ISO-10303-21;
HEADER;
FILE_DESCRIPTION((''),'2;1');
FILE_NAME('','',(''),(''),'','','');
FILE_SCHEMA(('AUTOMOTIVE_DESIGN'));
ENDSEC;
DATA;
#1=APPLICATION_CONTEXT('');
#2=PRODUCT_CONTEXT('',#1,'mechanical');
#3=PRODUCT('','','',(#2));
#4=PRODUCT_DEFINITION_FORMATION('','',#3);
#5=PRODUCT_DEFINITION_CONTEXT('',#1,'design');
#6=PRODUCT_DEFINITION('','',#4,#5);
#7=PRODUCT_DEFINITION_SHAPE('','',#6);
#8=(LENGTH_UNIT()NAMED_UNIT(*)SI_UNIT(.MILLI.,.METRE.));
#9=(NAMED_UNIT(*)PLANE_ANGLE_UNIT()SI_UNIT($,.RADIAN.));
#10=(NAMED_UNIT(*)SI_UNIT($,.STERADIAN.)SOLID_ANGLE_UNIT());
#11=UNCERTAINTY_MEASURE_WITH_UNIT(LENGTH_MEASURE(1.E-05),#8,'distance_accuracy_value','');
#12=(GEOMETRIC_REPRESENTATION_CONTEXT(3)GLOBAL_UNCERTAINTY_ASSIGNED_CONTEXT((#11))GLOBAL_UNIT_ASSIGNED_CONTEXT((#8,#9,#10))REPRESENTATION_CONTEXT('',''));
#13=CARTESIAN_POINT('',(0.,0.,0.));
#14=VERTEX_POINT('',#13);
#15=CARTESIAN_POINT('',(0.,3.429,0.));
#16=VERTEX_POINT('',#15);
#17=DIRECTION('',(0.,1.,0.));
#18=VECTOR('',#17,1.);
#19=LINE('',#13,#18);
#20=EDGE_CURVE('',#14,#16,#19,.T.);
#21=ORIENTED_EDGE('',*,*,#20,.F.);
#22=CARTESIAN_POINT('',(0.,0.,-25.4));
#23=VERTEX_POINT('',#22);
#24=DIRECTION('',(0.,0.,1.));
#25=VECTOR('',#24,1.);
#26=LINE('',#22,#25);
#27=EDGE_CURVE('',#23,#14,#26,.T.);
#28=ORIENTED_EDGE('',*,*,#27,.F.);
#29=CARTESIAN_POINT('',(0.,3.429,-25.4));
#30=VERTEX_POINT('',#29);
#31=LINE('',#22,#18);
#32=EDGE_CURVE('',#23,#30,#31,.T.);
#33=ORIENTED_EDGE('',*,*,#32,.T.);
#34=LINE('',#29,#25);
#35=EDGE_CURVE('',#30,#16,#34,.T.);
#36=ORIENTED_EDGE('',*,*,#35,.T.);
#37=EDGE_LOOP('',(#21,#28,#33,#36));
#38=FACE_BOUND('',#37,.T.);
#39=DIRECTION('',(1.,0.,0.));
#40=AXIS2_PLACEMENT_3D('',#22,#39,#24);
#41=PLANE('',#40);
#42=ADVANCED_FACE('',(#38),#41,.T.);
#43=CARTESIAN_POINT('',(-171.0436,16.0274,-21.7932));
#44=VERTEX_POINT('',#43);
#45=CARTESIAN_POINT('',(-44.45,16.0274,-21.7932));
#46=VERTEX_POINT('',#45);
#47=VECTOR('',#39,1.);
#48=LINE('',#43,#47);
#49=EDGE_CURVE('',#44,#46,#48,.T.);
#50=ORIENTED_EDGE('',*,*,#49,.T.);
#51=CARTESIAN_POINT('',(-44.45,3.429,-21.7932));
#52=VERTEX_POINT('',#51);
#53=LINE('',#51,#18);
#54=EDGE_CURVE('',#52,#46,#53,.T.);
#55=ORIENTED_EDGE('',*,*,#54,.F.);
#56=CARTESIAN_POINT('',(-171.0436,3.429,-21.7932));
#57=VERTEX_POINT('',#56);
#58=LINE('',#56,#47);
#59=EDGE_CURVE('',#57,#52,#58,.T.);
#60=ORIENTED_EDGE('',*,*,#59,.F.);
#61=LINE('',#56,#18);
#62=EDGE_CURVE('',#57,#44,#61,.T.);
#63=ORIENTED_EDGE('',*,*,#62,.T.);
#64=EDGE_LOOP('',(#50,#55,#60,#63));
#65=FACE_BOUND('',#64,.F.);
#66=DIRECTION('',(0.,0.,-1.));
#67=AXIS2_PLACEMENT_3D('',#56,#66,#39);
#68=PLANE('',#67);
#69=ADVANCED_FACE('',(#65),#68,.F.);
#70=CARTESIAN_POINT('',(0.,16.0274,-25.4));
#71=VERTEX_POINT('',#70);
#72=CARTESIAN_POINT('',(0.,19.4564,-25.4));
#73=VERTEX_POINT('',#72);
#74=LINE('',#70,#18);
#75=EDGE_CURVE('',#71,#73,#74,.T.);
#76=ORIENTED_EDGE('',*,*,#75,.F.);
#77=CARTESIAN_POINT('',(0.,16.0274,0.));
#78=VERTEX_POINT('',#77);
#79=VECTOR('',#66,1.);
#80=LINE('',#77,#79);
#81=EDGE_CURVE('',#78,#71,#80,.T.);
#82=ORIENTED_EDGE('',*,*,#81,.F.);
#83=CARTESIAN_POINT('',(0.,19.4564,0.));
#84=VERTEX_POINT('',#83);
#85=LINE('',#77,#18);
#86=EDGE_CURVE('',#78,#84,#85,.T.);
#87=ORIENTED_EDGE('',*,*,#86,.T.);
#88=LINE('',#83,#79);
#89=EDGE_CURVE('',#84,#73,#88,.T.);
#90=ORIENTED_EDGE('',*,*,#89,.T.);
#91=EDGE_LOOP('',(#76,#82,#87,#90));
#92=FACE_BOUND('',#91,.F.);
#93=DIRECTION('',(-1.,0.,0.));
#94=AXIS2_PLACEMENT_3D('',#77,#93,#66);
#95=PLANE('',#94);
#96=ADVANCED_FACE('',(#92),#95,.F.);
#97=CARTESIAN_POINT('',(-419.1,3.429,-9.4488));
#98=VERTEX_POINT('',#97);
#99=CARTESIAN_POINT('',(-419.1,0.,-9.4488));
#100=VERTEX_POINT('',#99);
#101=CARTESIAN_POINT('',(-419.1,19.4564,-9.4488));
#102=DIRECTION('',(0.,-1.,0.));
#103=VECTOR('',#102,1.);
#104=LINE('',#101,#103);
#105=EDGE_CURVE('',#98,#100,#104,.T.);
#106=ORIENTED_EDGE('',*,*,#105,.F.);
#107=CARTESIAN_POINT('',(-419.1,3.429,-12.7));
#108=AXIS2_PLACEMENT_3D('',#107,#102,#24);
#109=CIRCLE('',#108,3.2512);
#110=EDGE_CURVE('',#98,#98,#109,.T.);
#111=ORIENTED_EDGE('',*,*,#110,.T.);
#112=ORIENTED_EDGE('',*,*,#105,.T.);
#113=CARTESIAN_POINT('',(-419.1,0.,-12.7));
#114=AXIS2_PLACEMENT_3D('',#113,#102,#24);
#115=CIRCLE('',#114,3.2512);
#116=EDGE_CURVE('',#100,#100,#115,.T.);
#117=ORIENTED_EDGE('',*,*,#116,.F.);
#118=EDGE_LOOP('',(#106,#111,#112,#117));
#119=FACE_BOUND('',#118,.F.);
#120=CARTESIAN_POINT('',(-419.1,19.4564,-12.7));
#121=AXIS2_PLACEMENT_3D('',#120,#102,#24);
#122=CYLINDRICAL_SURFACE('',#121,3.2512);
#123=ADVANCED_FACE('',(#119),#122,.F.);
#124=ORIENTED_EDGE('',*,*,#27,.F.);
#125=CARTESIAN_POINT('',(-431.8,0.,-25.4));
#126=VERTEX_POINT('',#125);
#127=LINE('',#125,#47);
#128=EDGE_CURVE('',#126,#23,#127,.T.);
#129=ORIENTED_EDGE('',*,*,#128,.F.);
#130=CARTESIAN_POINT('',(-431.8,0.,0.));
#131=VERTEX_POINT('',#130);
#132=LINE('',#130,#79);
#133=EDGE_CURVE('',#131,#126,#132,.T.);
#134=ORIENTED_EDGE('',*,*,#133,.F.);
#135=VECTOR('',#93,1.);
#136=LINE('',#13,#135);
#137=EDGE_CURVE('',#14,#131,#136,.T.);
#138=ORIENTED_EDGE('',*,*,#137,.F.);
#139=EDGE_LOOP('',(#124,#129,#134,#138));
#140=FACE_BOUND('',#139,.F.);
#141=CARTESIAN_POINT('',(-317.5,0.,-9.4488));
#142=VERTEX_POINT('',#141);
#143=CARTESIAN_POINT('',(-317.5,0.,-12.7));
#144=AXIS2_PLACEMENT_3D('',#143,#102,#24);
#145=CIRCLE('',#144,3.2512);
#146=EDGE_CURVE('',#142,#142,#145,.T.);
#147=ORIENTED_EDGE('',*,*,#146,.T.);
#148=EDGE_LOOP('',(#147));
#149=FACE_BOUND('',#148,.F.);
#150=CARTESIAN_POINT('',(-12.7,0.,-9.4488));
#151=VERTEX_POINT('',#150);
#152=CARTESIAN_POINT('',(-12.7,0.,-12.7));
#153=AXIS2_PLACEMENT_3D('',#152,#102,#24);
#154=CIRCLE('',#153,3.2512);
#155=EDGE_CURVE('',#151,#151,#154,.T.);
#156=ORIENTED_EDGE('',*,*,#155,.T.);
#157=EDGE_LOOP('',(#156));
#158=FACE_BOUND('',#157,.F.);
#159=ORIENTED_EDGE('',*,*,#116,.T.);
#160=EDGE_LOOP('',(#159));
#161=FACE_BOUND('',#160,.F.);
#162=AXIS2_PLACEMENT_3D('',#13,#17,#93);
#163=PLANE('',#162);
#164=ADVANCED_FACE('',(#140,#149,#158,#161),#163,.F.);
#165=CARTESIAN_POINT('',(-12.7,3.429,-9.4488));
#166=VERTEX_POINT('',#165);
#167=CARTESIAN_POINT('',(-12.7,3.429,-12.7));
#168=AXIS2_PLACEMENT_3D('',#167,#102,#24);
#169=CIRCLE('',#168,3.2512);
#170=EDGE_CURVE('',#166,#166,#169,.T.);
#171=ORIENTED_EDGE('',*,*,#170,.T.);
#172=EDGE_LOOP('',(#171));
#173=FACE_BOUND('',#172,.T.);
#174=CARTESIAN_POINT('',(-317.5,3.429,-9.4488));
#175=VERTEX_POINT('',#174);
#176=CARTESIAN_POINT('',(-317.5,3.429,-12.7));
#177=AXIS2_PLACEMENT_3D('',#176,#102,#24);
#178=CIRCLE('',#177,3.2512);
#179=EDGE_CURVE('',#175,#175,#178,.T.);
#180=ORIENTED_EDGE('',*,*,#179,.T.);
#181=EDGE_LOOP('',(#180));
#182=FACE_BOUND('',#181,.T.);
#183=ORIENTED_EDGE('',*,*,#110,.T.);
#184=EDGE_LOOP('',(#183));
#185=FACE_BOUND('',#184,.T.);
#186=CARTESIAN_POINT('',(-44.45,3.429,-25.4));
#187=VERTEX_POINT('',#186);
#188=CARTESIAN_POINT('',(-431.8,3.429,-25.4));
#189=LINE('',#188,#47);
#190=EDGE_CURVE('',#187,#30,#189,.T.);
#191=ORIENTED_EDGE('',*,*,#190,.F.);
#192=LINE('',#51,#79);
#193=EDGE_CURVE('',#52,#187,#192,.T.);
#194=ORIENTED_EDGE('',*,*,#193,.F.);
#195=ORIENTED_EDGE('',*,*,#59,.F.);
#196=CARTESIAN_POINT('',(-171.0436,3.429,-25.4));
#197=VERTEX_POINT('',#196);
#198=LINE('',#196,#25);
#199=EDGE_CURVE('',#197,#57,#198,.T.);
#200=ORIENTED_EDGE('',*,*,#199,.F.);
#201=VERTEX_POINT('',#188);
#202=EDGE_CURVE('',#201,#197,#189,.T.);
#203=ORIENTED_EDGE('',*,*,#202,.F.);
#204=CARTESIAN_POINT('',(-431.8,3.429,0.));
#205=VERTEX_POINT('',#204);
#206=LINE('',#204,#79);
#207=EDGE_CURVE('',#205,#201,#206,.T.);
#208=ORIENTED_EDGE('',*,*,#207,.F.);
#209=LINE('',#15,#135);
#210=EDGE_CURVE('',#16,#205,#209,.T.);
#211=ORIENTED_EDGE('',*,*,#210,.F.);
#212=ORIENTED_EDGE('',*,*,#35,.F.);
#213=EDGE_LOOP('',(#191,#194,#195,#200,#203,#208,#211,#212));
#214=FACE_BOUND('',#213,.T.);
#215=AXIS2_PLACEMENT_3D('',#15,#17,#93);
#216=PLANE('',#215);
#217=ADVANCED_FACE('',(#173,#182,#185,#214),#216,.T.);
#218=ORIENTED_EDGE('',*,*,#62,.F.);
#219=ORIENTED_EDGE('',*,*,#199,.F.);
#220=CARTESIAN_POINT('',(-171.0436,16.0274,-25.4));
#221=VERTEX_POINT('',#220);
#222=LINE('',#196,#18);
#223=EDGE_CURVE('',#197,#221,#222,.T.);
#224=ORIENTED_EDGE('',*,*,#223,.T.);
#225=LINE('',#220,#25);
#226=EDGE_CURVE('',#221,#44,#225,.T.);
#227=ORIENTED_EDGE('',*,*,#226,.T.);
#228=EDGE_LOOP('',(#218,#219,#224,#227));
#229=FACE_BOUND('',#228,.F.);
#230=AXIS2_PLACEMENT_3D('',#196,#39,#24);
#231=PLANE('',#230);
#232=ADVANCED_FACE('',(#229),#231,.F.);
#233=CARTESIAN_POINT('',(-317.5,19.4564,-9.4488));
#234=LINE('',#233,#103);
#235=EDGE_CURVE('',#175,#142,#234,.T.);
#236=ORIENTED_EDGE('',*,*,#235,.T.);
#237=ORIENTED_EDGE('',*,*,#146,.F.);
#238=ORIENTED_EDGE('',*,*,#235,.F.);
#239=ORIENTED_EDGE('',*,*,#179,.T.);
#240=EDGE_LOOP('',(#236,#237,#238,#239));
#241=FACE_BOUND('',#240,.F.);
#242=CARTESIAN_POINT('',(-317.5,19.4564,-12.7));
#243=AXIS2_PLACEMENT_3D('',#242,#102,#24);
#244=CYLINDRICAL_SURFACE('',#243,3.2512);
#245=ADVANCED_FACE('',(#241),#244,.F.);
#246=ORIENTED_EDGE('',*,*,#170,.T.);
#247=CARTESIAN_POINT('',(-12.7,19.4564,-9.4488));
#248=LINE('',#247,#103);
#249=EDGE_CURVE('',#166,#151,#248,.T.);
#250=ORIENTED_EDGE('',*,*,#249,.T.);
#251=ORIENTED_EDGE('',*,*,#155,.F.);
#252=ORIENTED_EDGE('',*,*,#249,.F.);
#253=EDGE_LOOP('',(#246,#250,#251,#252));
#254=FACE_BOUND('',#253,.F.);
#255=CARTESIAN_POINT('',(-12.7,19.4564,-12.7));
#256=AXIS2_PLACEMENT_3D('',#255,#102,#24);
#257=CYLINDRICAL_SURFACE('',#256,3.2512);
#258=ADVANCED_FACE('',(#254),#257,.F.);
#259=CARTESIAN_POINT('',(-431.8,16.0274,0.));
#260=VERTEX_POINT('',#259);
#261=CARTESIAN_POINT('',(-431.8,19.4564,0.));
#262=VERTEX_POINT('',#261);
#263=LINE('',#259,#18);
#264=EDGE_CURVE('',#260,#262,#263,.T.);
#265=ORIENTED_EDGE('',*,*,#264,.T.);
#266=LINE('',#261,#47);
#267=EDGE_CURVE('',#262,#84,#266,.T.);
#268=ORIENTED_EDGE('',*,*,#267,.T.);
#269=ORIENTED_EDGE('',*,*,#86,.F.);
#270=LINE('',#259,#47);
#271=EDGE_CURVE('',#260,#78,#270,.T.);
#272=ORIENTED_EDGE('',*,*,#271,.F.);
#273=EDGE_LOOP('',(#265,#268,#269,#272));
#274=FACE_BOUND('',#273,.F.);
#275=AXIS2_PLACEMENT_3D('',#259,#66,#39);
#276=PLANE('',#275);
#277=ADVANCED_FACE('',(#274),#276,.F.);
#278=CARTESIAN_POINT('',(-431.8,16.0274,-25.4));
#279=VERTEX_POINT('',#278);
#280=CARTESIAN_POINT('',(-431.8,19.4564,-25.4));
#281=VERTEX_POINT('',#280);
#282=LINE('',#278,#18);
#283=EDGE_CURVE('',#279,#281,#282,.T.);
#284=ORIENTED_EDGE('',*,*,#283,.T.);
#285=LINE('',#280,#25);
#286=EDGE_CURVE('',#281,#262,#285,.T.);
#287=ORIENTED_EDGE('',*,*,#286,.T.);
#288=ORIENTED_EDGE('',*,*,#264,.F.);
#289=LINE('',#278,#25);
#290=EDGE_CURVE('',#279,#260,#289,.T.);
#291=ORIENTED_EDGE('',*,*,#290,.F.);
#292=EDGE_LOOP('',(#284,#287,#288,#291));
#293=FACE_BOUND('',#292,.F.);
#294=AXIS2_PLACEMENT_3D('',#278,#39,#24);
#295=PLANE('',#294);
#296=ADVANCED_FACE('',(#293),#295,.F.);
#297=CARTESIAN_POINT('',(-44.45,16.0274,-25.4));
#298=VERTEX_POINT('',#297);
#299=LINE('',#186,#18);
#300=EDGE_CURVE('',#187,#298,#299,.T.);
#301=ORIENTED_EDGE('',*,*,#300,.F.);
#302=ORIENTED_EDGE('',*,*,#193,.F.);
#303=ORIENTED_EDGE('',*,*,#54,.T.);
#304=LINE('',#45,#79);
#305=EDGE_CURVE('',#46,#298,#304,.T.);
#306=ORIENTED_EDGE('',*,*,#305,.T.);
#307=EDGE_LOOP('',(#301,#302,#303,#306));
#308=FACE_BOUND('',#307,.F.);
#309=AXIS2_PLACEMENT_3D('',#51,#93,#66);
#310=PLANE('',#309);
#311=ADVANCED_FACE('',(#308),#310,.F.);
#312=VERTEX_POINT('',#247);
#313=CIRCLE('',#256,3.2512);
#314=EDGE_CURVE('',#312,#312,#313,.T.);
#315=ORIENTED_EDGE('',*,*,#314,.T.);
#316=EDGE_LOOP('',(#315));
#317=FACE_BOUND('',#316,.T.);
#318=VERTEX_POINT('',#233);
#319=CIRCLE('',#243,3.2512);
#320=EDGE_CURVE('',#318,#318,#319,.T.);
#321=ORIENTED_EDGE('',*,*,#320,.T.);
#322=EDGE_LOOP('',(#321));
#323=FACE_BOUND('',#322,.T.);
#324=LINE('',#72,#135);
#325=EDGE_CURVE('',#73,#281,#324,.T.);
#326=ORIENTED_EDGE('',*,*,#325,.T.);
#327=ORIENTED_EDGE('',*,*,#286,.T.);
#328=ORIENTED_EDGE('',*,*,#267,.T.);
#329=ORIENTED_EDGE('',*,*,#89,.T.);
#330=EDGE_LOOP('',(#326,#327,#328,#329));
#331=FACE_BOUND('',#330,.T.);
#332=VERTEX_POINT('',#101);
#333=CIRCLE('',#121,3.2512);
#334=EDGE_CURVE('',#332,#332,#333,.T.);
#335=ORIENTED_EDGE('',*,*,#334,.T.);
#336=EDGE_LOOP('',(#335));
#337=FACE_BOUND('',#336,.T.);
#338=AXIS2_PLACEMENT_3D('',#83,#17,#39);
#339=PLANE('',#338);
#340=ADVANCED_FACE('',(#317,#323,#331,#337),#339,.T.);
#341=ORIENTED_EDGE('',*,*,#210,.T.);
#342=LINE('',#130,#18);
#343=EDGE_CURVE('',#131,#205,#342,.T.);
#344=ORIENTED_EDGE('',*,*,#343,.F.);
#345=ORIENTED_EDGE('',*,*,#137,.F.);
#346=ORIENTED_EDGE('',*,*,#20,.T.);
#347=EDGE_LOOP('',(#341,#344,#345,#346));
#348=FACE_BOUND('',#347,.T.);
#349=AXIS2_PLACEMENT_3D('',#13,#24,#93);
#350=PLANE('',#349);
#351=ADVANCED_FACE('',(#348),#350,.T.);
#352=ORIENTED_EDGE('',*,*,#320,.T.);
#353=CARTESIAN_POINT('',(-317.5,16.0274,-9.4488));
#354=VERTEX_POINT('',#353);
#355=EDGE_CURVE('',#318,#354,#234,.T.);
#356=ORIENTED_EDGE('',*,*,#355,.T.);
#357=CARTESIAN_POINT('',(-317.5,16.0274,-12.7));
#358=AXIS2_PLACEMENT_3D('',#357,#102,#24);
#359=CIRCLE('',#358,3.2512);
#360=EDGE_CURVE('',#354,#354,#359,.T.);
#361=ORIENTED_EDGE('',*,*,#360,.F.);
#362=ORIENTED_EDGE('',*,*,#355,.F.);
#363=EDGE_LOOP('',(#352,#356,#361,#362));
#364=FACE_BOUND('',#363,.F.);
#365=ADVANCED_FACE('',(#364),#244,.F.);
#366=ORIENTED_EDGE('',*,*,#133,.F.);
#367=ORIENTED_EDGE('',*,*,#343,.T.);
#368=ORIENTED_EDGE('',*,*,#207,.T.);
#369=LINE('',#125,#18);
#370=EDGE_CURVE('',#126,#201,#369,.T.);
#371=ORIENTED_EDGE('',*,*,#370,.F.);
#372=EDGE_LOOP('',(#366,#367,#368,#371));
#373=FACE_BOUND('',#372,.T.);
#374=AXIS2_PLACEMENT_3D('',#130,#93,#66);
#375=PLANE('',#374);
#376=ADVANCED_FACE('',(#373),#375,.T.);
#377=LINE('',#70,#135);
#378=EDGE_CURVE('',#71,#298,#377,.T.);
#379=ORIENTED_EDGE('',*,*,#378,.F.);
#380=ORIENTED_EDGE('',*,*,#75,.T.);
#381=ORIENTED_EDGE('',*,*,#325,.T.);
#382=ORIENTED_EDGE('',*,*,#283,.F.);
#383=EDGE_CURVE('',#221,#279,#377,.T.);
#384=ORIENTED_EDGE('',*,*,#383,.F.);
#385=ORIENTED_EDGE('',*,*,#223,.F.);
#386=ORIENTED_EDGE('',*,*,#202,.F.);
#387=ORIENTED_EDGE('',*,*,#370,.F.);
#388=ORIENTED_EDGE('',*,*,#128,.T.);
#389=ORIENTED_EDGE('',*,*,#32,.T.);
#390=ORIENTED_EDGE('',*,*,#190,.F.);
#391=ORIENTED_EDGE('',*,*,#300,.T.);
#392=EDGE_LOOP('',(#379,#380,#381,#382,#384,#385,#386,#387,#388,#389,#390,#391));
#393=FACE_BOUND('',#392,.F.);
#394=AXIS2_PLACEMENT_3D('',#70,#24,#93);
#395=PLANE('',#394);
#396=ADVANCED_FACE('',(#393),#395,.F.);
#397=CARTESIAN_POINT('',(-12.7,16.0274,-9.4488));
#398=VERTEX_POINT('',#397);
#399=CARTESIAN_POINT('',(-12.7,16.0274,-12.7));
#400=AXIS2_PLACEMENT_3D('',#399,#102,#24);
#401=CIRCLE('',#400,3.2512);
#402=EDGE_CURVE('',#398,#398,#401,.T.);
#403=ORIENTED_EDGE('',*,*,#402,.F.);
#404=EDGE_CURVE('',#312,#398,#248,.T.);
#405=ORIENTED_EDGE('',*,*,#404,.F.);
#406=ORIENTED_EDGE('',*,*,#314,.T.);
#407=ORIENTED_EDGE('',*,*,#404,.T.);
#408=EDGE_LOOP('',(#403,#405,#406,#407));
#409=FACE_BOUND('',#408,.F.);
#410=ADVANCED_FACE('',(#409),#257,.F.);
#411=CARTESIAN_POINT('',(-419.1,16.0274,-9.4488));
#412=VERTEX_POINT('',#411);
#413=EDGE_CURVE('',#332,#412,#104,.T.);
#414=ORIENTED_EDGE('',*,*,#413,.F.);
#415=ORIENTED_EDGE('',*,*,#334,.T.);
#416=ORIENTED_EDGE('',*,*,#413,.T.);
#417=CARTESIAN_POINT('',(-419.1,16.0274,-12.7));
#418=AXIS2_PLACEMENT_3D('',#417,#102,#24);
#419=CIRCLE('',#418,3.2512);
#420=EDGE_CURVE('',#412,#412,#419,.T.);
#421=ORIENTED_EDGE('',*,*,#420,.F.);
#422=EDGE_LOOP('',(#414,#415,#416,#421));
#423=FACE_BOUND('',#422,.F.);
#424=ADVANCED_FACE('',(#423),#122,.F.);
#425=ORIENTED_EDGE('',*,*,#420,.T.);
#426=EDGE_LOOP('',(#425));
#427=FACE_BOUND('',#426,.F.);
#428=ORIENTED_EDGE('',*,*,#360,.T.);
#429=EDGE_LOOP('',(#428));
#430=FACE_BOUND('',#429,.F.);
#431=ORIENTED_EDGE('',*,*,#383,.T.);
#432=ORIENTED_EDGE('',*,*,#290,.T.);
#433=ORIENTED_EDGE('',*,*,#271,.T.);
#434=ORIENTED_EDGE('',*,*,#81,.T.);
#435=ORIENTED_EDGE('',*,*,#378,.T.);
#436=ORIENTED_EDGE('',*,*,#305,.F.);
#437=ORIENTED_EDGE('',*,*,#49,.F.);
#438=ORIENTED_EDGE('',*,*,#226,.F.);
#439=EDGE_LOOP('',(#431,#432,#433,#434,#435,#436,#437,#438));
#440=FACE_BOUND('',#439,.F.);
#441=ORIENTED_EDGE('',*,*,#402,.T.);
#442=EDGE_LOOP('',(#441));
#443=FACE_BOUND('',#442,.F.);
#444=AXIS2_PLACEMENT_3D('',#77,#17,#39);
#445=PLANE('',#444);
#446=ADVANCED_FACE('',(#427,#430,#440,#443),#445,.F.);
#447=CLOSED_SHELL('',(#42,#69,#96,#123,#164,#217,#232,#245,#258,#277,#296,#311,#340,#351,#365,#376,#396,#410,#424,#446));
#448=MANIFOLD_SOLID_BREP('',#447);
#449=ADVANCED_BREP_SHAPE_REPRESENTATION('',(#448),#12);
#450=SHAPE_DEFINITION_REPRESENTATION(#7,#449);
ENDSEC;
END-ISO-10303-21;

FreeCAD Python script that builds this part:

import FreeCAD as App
import Part
import Sketcher
from FreeCAD import Vector
Q = App.Units.Quantity

doc = App.newDocument("Part")
body = doc.addObject("PartDesign::Body", "Body")

sketch1 = body.newObject("Sketcher::SketchObject", "Sketch")
sketch1.AttachmentSupport = (doc.getObject("XZ_Plane"), [""])
sketch1.MapMode = "FlatFace"
sketch1.addGeometry([
    Part.LineSegment(Vector(-431.8, 0, 0), Vector(0, 0, 0)),
    Part.LineSegment(Vector(0, 0, 0), Vector(0, -25.4, 0)),
    Part.LineSegment(Vector(0, -25.4, 0), Vector(-431.8, -25.4, 0)),
    Part.LineSegment(Vector(-431.8, -25.4, 0), Vector(-431.8, 0, 0)),
], False)
sketch1.addConstraint([
    Sketcher.Constraint("Coincident", 0, 2, 1, 1),
    Sketcher.Constraint("Coincident", 1, 2, 2, 1),
    Sketcher.Constraint("Coincident", 2, 2, 3, 1),
    Sketcher.Constraint("Coincident", 3, 2, 0, 1),
    Sketcher.Constraint("Horizontal", 0),
    Sketcher.Constraint("Vertical", 1),
    Sketcher.Constraint("Horizontal", 2),
    Sketcher.Constraint("Vertical", 3),
    Sketcher.Constraint("Coincident", 0, 2, -1, 1),
    Sketcher.Constraint("DistanceX", 0, 1, 0, 2, Q("17 in")),
    Sketcher.Constraint("DistanceY", 1, 2, 1, 1, Q("1 in")),
])
pad1 = body.newObject("PartDesign::Pad", "Pad")
pad1.Profile = sketch1
pad1.Length = Q("0.135 in")
pad1.Reversed = True

sketch2 = body.newObject("Sketcher::SketchObject", "Sketch001")
sketch2.AttachmentSupport = (doc.getObject("XZ_Plane"), [""])
sketch2.MapMode = "FlatFace"
sketch2.AttachmentOffset = App.Placement(Vector(0, 0, -0.135 * 25.4), App.Rotation())
sketch2.addGeometry([
    Part.LineSegment(Vector(-44.45, -21.7932, 0), Vector(-44.45, -25.4, 0)),
    Part.LineSegment(Vector(-44.45, -25.4, 0), Vector(-171.0436, -25.4, 0)),
    Part.LineSegment(Vector(-171.0436, -25.4, 0), Vector(-171.0436, -21.7932, 0)),
    Part.LineSegment(Vector(-171.0436, -21.7932, 0), Vector(-44.45, -21.7932, 0)),
], False)
sketch2.addConstraint([
    Sketcher.Constraint("Coincident", 0, 2, 1, 1),
    Sketcher.Constraint("Coincident", 1, 2, 2, 1),
    Sketcher.Constraint("Coincident", 2, 2, 3, 1),
    Sketcher.Constraint("Coincident", 3, 2, 0, 1),
    Sketcher.Constraint("Vertical", 0),
    Sketcher.Constraint("Horizontal", 1),
    Sketcher.Constraint("Vertical", 2),
    Sketcher.Constraint("Horizontal", 3),
    Sketcher.Constraint("DistanceX", 1, 2, 1, 1, Q("4.984 in")),
    Sketcher.Constraint("DistanceY", 0, 2, 0, 1, Q("0.142 in")),
    Sketcher.Constraint("DistanceX", 0, 2, -1, 1, Q("1.75 in")),
    Sketcher.Constraint("DistanceY", 0, 2, -1, 1, Q("1 in")),
])
pad2 = body.newObject("PartDesign::Pad", "Pad001")
pad2.Profile = sketch2
pad2.Length = Q("0.496 in")
pad2.Reversed = True

sketch3 = body.newObject("Sketcher::SketchObject", "Sketch002")
sketch3.AttachmentSupport = (doc.getObject("XZ_Plane"), [""])
sketch3.MapMode = "FlatFace"
sketch3.AttachmentOffset = App.Placement(Vector(0, 0, -0.631 * 25.4), App.Rotation())
sketch3.addGeometry([
    Part.LineSegment(Vector(-431.8, -25.4, 0), Vector(-431.8, 0, 0)),
    Part.LineSegment(Vector(-431.8, 0, 0), Vector(0, 0, 0)),
    Part.LineSegment(Vector(0, 0, 0), Vector(0, -25.4, 0)),
    Part.LineSegment(Vector(0, -25.4, 0), Vector(-431.8, -25.4, 0)),
], False)
sketch3.addConstraint([
    Sketcher.Constraint("Coincident", 0, 2, 1, 1),
    Sketcher.Constraint("Coincident", 1, 2, 2, 1),
    Sketcher.Constraint("Coincident", 2, 2, 3, 1),
    Sketcher.Constraint("Coincident", 3, 2, 0, 1),
    Sketcher.Constraint("Vertical", 0),
    Sketcher.Constraint("Horizontal", 1),
    Sketcher.Constraint("Vertical", 2),
    Sketcher.Constraint("Horizontal", 3),
    Sketcher.Constraint("Coincident", 1, 2, -1, 1),
    Sketcher.Constraint("DistanceX", 1, 1, 1, 2, Q("17 in")),
    Sketcher.Constraint("DistanceY", 0, 1, 0, 2, Q("1 in")),
])
pad3 = body.newObject("PartDesign::Pad", "Pad002")
pad3.Profile = sketch3
pad3.Length = Q("0.135 in")
pad3.Reversed = True

sketch4 = body.newObject("Sketcher::SketchObject", "Sketch003")
sketch4.AttachmentSupport = (doc.getObject("XZ_Plane"), [""])
sketch4.MapMode = "FlatFace"
sketch4.AttachmentOffset = App.Placement(Vector(0, 0, -0.766 * 25.4), App.Rotation())
sketch4.addGeometry([
    Part.Circle(Vector(-12.7, -12.7, 0), Vector(0, 0, 1), 3.2512),
    Part.Circle(Vector(-419.1, -12.7, 0), Vector(0, 0, 1), 3.2512),
    Part.Circle(Vector(-317.5, -12.7, 0), Vector(0, 0, 1), 3.2512),
], False)
sketch4.addConstraint([
    Sketcher.Constraint("Equal", 0, 1),
    Sketcher.Constraint("Equal", 1, 2),
    Sketcher.Constraint("Horizontal", 0, 3, 1, 3),
    Sketcher.Constraint("Horizontal", 1, 3, 2, 3),
    Sketcher.Constraint("Diameter", 0, Q("0.256 in")),
    Sketcher.Constraint("DistanceX", 1, 3, 0, 3, Q("16 in")),
    Sketcher.Constraint("DistanceX", 1, 3, 2, 3, Q("4 in")),
    Sketcher.Constraint("DistanceX", 0, 3, -1, 1, Q("0.5 in")),
    Sketcher.Constraint("DistanceY", 0, 3, -1, 1, Q("0.5 in")),
])
doc.recompute()
hole = body.newObject("PartDesign::Hole", "Hole")
hole.Profile = sketch4
hole.ThreadType = "None"
hole.Diameter = Q("0.256 in")
hole.DepthType = "ThroughAll"
hole.Reversed = True

doc.recompute()
